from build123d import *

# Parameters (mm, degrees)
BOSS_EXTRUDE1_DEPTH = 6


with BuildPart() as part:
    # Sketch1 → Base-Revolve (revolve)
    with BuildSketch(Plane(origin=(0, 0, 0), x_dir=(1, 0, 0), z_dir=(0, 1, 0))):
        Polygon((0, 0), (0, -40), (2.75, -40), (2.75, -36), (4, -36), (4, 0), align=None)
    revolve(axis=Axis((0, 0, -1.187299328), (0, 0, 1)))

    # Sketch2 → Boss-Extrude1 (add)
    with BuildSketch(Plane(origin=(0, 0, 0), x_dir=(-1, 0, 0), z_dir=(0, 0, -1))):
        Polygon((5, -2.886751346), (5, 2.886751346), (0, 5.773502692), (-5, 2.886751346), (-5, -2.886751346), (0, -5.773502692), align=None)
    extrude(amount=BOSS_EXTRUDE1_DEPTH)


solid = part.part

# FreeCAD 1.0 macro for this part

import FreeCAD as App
import Part
import Sketcher
from FreeCAD import Vector
Q = App.Units.Quantity


def add_polygon(sketch, points):
    """Adds a closed chain of lines whose ends are joined by coincident constraints."""
    first, n = sketch.GeometryCount, len(points)
    for a, b in zip(points, points[1:] + points[:1]):
        sketch.addGeometry(Part.LineSegment(App.Vector(*a, 0), App.Vector(*b, 0)), False)
    for i in range(n):
        sketch.addConstraint(Sketcher.Constraint("Coincident", first + i, 2, first + (i + 1) % n, 1))

doc = App.newDocument("Part")
body = doc.addObject("PartDesign::Body", "Body")

# Sketch on XZ plane
sketch1 = doc.addObject("Sketcher::SketchObject", "Sketch")
body.addObject(sketch1)
sketch1.AttachmentSupport = (doc.XZ_Plane, [""])
sketch1.MapMode = "FlatFace"
add_polygon(sketch1, [(0, 0), (0, 40), (2.75, 40), (2.75, 36), (4, 36), (4, 0)])  # lines 0-5
sketch1.addConstraint(Sketcher.Constraint("Vertical", 0))
sketch1.addConstraint(Sketcher.Constraint("Horizontal", 1))
sketch1.addConstraint(Sketcher.Constraint("Vertical", 2))
sketch1.addConstraint(Sketcher.Constraint("Horizontal", 3))
sketch1.addConstraint(Sketcher.Constraint("Vertical", 4))
sketch1.addConstraint(Sketcher.Constraint("Horizontal", 5))
sketch1.addConstraint(Sketcher.Constraint("Coincident", 5, 2, -1, 1))
sketch1.addConstraint(Sketcher.Constraint("Equal", 5, 2))
sketch1.addConstraint(Sketcher.Constraint("DistanceX", 5, 2, 5, 1, 4.0))
sketch1.addConstraint(Sketcher.Constraint("DistanceY", 0, 1, 0, 2, 40.0))
sketch1.addConstraint(Sketcher.Constraint("DistanceX", 1, 1, 1, 2, 2.75))
revolution = doc.addObject("PartDesign::Revolution", "Revolution")
body.addObject(revolution)
revolution.Profile = sketch1
revolution.ReferenceAxis = (sketch1, ["V_Axis"])
revolution.Angle = 360

# Sketch on XY plane
sketch2 = doc.addObject("Sketcher::SketchObject", "Sketch001")
body.addObject(sketch2)
sketch2.AttachmentSupport = (doc.XY_Plane, [""])
sketch2.MapMode = "FlatFace"
add_polygon(sketch2, [(-5, -2.886751), (-5, 2.886751), (0, 5.773503), (5, 2.886751), (5, -2.886751), (0, -5.773503)])  # lines 0-5
sketch2.addConstraint(Sketcher.Constraint("Vertical", 0))
sketch2.addConstraint(Sketcher.Constraint("Vertical", 3))
sketch2.addConstraint(Sketcher.Constraint("Symmetric", 0, 2, 3, 2, -1, 1))
sketch2.addConstraint(Sketcher.Constraint("Symmetric", 1, 2, 4, 2, -1, 1))
sketch2.addConstraint(Sketcher.Constraint("PointOnObject", 1, 2, -2))
sketch2.addConstraint(Sketcher.Constraint("Parallel", 2, 5))
sketch2.addConstraint(Sketcher.Constraint("Horizontal", 0, 2, 2, 2))
sketch2.addConstraint(Sketcher.Constraint("Angle", 1, Q("30 deg")))
sketch2.addConstraint(Sketcher.Constraint("DistanceX", 0, 2, -1, 1, 5.0))
sketch2.addConstraint(Sketcher.Constraint("DistanceY", 0, 1, 0, 2, 5.773503))
pad1 = doc.addObject("PartDesign::Pad", "Pad")
body.addObject(pad1)
pad1.Profile = sketch2
pad1.Length = 6
pad1.Reversed = True

doc.recompute()
